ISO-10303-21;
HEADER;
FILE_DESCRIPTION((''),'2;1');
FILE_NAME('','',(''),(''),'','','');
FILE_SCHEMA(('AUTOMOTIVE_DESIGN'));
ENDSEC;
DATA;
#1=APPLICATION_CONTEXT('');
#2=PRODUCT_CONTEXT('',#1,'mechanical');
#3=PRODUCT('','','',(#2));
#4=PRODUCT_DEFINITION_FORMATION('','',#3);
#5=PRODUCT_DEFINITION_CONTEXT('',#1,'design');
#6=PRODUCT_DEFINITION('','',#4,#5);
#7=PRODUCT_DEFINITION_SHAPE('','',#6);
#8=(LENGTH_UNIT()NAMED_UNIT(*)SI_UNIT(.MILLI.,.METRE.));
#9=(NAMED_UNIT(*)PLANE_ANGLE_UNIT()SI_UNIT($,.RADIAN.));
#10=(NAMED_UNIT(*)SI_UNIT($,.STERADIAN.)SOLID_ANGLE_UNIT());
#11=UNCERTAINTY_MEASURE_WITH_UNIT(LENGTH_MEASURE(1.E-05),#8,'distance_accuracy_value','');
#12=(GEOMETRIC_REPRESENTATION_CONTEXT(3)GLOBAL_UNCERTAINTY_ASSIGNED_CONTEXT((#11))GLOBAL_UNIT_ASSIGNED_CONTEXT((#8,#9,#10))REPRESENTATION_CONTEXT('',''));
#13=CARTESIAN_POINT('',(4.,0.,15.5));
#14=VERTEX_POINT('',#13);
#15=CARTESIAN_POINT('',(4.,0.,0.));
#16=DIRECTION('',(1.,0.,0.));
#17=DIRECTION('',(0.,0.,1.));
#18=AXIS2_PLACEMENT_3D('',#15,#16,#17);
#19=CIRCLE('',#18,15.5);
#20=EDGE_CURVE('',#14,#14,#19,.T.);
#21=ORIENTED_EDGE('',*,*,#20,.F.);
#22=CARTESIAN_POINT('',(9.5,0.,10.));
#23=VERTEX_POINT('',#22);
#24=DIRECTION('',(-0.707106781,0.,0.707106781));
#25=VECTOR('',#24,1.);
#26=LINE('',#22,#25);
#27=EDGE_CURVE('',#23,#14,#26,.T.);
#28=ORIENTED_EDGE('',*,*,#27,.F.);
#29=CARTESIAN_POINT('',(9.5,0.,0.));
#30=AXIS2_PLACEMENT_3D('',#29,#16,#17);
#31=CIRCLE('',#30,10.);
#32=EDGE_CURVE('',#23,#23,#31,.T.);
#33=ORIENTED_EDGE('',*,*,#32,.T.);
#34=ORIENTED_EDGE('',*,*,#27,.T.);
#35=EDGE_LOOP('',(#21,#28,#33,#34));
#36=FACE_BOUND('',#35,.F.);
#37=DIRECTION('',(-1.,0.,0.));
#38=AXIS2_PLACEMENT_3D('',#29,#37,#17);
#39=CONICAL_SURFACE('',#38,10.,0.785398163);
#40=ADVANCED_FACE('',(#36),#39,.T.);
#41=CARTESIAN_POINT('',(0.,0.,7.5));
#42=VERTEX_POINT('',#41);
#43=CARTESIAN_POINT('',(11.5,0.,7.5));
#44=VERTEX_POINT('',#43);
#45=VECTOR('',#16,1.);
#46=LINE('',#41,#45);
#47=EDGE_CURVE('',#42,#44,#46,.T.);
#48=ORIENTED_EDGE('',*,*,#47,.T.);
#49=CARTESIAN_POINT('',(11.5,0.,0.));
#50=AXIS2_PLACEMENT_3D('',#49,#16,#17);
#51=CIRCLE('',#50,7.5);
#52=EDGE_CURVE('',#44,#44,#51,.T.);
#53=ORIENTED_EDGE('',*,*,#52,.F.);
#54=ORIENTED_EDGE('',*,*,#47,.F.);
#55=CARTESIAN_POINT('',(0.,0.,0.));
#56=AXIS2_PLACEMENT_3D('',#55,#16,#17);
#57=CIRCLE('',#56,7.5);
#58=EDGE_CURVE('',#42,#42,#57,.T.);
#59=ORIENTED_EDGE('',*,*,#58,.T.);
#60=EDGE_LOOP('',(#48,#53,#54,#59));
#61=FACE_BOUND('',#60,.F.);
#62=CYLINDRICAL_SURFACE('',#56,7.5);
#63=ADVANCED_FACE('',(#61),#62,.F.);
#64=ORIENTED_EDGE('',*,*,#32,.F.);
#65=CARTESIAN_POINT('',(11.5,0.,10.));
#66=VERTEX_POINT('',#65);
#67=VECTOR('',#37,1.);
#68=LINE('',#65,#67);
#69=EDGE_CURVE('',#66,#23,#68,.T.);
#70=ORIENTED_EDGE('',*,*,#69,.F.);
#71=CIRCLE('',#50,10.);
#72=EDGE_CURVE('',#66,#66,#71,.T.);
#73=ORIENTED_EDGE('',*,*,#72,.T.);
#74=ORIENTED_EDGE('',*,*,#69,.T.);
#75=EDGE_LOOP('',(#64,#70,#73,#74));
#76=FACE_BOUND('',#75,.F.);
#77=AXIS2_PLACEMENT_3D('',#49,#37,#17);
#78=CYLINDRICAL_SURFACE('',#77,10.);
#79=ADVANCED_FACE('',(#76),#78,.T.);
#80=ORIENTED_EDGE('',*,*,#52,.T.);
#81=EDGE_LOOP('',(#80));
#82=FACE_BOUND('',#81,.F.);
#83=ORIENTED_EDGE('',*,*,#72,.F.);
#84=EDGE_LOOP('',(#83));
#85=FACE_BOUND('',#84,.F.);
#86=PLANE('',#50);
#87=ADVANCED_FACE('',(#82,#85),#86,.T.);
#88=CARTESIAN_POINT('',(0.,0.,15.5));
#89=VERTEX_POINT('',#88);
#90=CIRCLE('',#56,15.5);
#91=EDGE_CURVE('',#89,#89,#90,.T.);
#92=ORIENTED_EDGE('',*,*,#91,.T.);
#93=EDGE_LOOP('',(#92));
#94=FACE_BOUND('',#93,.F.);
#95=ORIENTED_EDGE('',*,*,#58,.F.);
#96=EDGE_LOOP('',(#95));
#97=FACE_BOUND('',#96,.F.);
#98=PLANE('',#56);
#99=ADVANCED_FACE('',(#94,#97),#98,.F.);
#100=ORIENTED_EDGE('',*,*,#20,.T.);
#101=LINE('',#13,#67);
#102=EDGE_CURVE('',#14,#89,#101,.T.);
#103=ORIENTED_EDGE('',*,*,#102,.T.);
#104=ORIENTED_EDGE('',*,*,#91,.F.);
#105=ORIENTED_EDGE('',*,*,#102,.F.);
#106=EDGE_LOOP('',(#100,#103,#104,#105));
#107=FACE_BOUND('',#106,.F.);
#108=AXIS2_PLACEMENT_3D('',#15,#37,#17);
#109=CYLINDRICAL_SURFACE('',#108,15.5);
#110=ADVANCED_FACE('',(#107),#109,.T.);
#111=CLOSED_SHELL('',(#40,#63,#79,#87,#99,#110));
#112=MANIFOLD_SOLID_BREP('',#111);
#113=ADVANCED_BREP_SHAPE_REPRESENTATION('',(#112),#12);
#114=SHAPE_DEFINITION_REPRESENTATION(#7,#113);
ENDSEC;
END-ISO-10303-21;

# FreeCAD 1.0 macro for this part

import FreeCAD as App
import Part
import Sketcher
from FreeCAD import Vector
Q = App.Units.Quantity


def add_polygon(sketch, points):
    """Adds a closed chain of lines whose ends are joined by coincident constraints."""
    first, n = sketch.GeometryCount, len(points)
    for a, b in zip(points, points[1:] + points[:1]):
        sketch.addGeometry(Part.LineSegment(App.Vector(*a, 0), App.Vector(*b, 0)), False)
    for i in range(n):
        sketch.addConstraint(Sketcher.Constraint("Coincident", first + i, 2, first + (i + 1) % n, 1))

doc = App.newDocument("Part")
body = doc.addObject("PartDesign::Body", "Body")

# Sketch on XZ plane
sketch1 = body.newObject("Sketcher::SketchObject", "Sketch")
sketch1.AttachmentSupport = (doc.getObject("XZ_Plane"), [""])
sketch1.MapMode = "FlatFace"
add_polygon(sketch1, [(0, 15.5), (0, 7.5), (11.5, 7.5), (11.5, 10), (9.5, 10), (4, 15.5)])  # lines 0-5
sketch1.addConstraint([
    Sketcher.Constraint("Vertical", 0),
    Sketcher.Constraint("Horizontal", 1),
    Sketcher.Constraint("Vertical", 2),
    Sketcher.Constraint("Horizontal", 3),
    Sketcher.Constraint("Horizontal", 5),
    Sketcher.Constraint("PointOnObject", 0, 2, -2),
    Sketcher.Constraint("DistanceX", 1, 1, 1, 2, 11.5),
    Sketcher.Constraint("DistanceX", 3, 2, 3, 1, 2.0),
    Sketcher.Constraint("DistanceX", 5, 2, 5, 1, 4.0),
    Sketcher.Constraint("DistanceY", 0, 2, 0, 1, 8.0),
    Sketcher.Constraint("Angle", 4, Q("135 deg")),
    Sketcher.Constraint("DistanceY", -1, 1, 2, 2, 10.0),
])
revolution = body.newObject("PartDesign::Revolution", "Revolution")
revolution.Profile = sketch1
revolution.ReferenceAxis = (sketch1, ["H_Axis"])
revolution.Angle = 360

doc.recompute()
